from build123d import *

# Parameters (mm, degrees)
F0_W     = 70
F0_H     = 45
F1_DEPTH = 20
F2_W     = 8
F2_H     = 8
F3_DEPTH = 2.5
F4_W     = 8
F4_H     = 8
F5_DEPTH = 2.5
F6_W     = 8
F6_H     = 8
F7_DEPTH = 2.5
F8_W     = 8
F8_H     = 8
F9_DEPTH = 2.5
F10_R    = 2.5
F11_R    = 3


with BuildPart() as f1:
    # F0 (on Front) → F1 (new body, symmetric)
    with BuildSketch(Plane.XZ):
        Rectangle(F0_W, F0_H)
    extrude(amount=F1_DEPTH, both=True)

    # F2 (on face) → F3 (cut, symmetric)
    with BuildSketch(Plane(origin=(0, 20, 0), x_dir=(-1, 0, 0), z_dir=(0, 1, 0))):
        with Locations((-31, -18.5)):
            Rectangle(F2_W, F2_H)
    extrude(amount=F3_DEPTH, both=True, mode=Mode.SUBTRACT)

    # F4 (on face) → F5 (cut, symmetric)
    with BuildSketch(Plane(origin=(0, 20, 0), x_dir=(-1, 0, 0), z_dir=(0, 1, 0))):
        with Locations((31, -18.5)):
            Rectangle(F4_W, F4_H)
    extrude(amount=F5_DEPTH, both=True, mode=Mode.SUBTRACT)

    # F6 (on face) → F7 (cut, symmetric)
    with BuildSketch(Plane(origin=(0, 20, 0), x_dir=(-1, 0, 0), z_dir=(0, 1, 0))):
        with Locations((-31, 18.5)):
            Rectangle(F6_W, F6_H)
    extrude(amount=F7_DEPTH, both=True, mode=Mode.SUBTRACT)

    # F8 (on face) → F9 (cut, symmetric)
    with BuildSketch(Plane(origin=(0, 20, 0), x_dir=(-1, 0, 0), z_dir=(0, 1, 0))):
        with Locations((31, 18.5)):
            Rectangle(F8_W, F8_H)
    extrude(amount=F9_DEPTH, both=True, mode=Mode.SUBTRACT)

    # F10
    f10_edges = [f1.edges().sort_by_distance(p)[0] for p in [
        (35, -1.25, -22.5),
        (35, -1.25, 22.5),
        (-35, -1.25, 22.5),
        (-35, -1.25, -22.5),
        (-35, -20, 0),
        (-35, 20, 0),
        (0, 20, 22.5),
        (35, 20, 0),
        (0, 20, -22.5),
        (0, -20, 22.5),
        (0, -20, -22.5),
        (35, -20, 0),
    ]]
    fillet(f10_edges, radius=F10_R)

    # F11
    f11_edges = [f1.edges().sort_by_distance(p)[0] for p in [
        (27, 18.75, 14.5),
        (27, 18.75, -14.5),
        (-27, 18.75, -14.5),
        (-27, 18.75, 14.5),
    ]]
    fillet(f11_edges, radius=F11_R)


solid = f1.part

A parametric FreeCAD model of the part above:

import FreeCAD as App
import Part
import Sketcher
from FreeCAD import Vector
Q = App.Units.Quantity


def edges_at(feature, points):
    """Names of the edges that pass closest to the given points."""
    edges = feature.Shape.Edges
    near = lambda p: min(range(len(edges)), key=lambda i: edges[i].distToShape(Part.Vertex(*p))[0])
    return sorted({f"Edge{near(p) + 1}" for p in points})

doc = App.newDocument("Part")
body = doc.addObject("PartDesign::Body", "Body")

# Sketch on XZ plane
sketch1 = doc.addObject("Sketcher::SketchObject", "Sketch")
body.addObject(sketch1)
sketch1.AttachmentSupport = (doc.XZ_Plane, [""])
sketch1.MapMode = "FlatFace"
sketch1.addGeometry([
    Part.LineSegment(Vector(-35, 22, 0), Vector(-35, -22, 0)),
    Part.LineSegment(Vector(-35, -22, 0), Vector(35, -22, 0)),
    Part.LineSegment(Vector(35, -22, 0), Vector(35, 22, 0)),
    Part.LineSegment(Vector(35, 22, 0), Vector(-35, 22, 0)),
], False)
sketch1.addConstraint([
    Sketcher.Constraint("Coincident", 0, 2, 1, 1),
    Sketcher.Constraint("Coincident", 1, 2, 2, 1),
    Sketcher.Constraint("Coincident", 2, 2, 3, 1),
    Sketcher.Constraint("Coincident", 3, 2, 0, 1),
    Sketcher.Constraint("Vertical", 0),
    Sketcher.Constraint("Horizontal", 1),
    Sketcher.Constraint("Vertical", 2),
    Sketcher.Constraint("Horizontal", 3),
    Sketcher.Constraint("Symmetric", 0, 2, 2, 2, -1, 1),
    Sketcher.Constraint("DistanceX", 1, 1, 1, 2, Q("70 mm")),
    Sketcher.Constraint("DistanceY", 0, 2, 0, 1, Q("45 mm")),
])
pad1 = doc.addObject("PartDesign::Pad", "Pad")
body.addObject(pad1)
pad1.Profile = sketch1
pad1.Length = 40
pad1.Midplane = True

# Sketch on XZ plane
sketch2 = doc.addObject("Sketcher::SketchObject", "Sketch001")
body.addObject(sketch2)
sketch2.AttachmentSupport = (doc.XZ_Plane, [""])
sketch2.MapMode = "FlatFace"
sketch2.AttachmentOffset = App.Placement(Vector(0, 0, -20), App.Rotation())
sketch2.addGeometry([
    Part.LineSegment(Vector(35, -14, 0), Vector(35, -22, 0)),
    Part.LineSegment(Vector(35, -22, 0), Vector(27, -22, 0)),
    Part.LineSegment(Vector(27, -22, 0), Vector(27, -14, 0)),
    Part.LineSegment(Vector(27, -14, 0), Vector(35, -14, 0)),
], False)
sketch2.addConstraint([
    Sketcher.Constraint("Coincident", 0, 2, 1, 1),
    Sketcher.Constraint("Coincident", 1, 2, 2, 1),
    Sketcher.Constraint("Coincident", 2, 2, 3, 1),
    Sketcher.Constraint("Coincident", 3, 2, 0, 1),
    Sketcher.Constraint("Vertical", 0),
    Sketcher.Constraint("Horizontal", 1),
    Sketcher.Constraint("Vertical", 2),
    Sketcher.Constraint("Horizontal", 3),
    Sketcher.Constraint("Equal", 3, 0),
    Sketcher.Constraint("DistanceX", 1, 2, 1, 1, Q("8 mm")),
    Sketcher.Constraint("DistanceX", -1, 1, 0, 2, Q("35 mm")),
    Sketcher.Constraint("DistanceY", 0, 2, -1, 1, Q("22.5 mm")),
])
pocket1 = doc.addObject("PartDesign::Pocket", "Pocket")
body.addObject(pocket1)
pocket1.Profile = sketch2
pocket1.Length = 5
pocket1.Midplane = True

# Sketch on XZ plane
sketch3 = doc.addObject("Sketcher::SketchObject", "Sketch002")
body.addObject(sketch3)
sketch3.AttachmentSupport = (doc.XZ_Plane, [""])
sketch3.MapMode = "FlatFace"
sketch3.AttachmentOffset = App.Placement(Vector(0, 0, -20), App.Rotation())
sketch3.addGeometry([
    Part.LineSegment(Vector(-27, -14, 0), Vector(-27, -22, 0)),
    Part.LineSegment(Vector(-27, -22, 0), Vector(-35, -22, 0)),
    Part.LineSegment(Vector(-35, -22, 0), Vector(-35, -14, 0)),
    Part.LineSegment(Vector(-35, -14, 0), Vector(-27, -14, 0)),
], False)
sketch3.addConstraint([
    Sketcher.Constraint("Coincident", 0, 2, 1, 1),
    Sketcher.Constraint("Coincident", 1, 2, 2, 1),
    Sketcher.Constraint("Coincident", 2, 2, 3, 1),
    Sketcher.Constraint("Coincident", 3, 2, 0, 1),
    Sketcher.Constraint("Vertical", 0),
    Sketcher.Constraint("Horizontal", 1),
    Sketcher.Constraint("Vertical", 2),
    Sketcher.Constraint("Horizontal", 3),
    Sketcher.Constraint("Equal", 3, 0),
    Sketcher.Constraint("DistanceX", 1, 2, 1, 1, Q("8 mm")),
    Sketcher.Constraint("DistanceX", 0, 2, -1, 1, Q("27 mm")),
    Sketcher.Constraint("DistanceY", 0, 2, -1, 1, Q("22.5 mm")),
])
pocket2 = doc.addObject("PartDesign::Pocket", "Pocket001")
body.addObject(pocket2)
pocket2.Profile = sketch3
pocket2.Length = 5
pocket2.Midplane = True

# Sketch on XZ plane
sketch4 = doc.addObject("Sketcher::SketchObject", "Sketch003")
body.addObject(sketch4)
sketch4.AttachmentSupport = (doc.XZ_Plane, [""])
sketch4.MapMode = "FlatFace"
sketch4.AttachmentOffset = App.Placement(Vector(0, 0, -20), App.Rotation())
sketch4.addGeometry([
    Part.LineSegment(Vector(35, 22, 0), Vector(35, 14, 0)),
    Part.LineSegment(Vector(35, 14, 0), Vector(27, 14, 0)),
    Part.LineSegment(Vector(27, 14, 0), Vector(27, 22, 0)),
    Part.LineSegment(Vector(27, 22, 0), Vector(35, 22, 0)),
], False)
sketch4.addConstraint([
    Sketcher.Constraint("Coincident", 0, 2, 1, 1),
    Sketcher.Constraint("Coincident", 1, 2, 2, 1),
    Sketcher.Constraint("Coincident", 2, 2, 3, 1),
    Sketcher.Constraint("Coincident", 3, 2, 0, 1),
    Sketcher.Constraint("Vertical", 0),
    Sketcher.Constraint("Horizontal", 1),
    Sketcher.Constraint("Vertical", 2),
    Sketcher.Constraint("Horizontal", 3),
    Sketcher.Constraint("Equal", 3, 0),
    Sketcher.Constraint("DistanceX", 1, 2, 1, 1, Q("8 mm")),
    Sketcher.Constraint("DistanceX", -1, 1, 0, 2, Q("35 mm")),
    Sketcher.Constraint("DistanceY", -1, 1, 0, 2, Q("14.5 mm")),
])
pocket3 = doc.addObject("PartDesign::Pocket", "Pocket002")
body.addObject(pocket3)
pocket3.Profile = sketch4
pocket3.Length = 5
pocket3.Midplane = True

# Sketch on XZ plane
sketch5 = doc.addObject("Sketcher::SketchObject", "Sketch004")
body.addObject(sketch5)
sketch5.AttachmentSupport = (doc.XZ_Plane, [""])
sketch5.MapMode = "FlatFace"
sketch5.AttachmentOffset = App.Placement(Vector(0, 0, -20), App.Rotation())
sketch5.addGeometry([
    Part.LineSegment(Vector(-27, 22, 0), Vector(-27, 14, 0)),
    Part.LineSegment(Vector(-27, 14, 0), Vector(-35, 14, 0)),
    Part.LineSegment(Vector(-35, 14, 0), Vector(-35, 22, 0)),
    Part.LineSegment(Vector(-35, 22, 0), Vector(-27, 22, 0)),
], False)
sketch5.addConstraint([
    Sketcher.Constraint("Coincident", 0, 2, 1, 1),
    Sketcher.Constraint("Coincident", 1, 2, 2, 1),
    Sketcher.Constraint("Coincident", 2, 2, 3, 1),
    Sketcher.Constraint("Coincident", 3, 2, 0, 1),
    Sketcher.Constraint("Vertical", 0),
    Sketcher.Constraint("Horizontal", 1),
    Sketcher.Constraint("Vertical", 2),
    Sketcher.Constraint("Horizontal", 3),
    Sketcher.Constraint("Equal", 3, 0),
    Sketcher.Constraint("DistanceX", 1, 2, 1, 1, Q("8 mm")),
    Sketcher.Constraint("DistanceX", 0, 2, -1, 1, Q("27 mm")),
    Sketcher.Constraint("DistanceY", -1, 1, 0, 2, Q("14.5 mm")),
])
pocket4 = doc.addObject("PartDesign::Pocket", "Pocket003")
body.addObject(pocket4)
pocket4.Profile = sketch5
pocket4.Length = 5
pocket4.Midplane = True
doc.recompute()

fillet = doc.addObject("PartDesign::Fillet", "Fillet")
body.addObject(fillet)
fillet.Base = (pocket4, edges_at(pocket4, [
    (35, -1.25, -22.5),
    (35, -1.25, 22.5),
    (-35, -1.25, 22.5),
    (-35, -1.25, -22.5),
    (-35, -20, 0),
    (-35, 20, 0),
    (0, 20, 22.5),
    (35, 20, 0),
    (0, 20, -22.5),
    (0, -20, 22.5),
    (0, -20, -22.5),
    (35, -20, 0),
]))
fillet.Radius = 2.5
doc.recompute()

fillet2 = doc.addObject("PartDesign::Fillet", "Fillet001")
body.addObject(fillet2)
fillet2.Base = (fillet, edges_at(fillet, [
    (27, 18.75, 14.5),
    (27, 18.75, -14.5),
    (-27, 18.75, -14.5),
    (-27, 18.75, 14.5),
]))
fillet2.Radius = 3

doc.recompute()
